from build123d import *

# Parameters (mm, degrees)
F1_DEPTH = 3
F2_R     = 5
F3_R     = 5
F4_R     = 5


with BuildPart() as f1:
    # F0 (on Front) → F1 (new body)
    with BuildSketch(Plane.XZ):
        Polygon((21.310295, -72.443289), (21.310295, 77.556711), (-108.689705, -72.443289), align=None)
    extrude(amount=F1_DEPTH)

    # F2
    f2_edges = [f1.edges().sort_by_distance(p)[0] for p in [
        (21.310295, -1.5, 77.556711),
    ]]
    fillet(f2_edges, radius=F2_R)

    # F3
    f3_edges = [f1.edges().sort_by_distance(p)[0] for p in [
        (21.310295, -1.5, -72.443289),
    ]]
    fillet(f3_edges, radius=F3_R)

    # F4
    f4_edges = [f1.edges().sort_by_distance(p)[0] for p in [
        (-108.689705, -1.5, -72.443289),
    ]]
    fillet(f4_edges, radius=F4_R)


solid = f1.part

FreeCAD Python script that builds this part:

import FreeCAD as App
import Part
import Sketcher

V = App.Vector
Q = App.Units.Quantity


def edges_at(feature, points):
    """Names of the edges that pass closest to the given points."""
    edges = feature.Shape.Edges
    near = lambda p: min(range(len(edges)), key=lambda i: edges[i].distToShape(Part.Vertex(*p))[0])
    return sorted({f"Edge{near(p) + 1}" for p in points})

doc = App.newDocument("Part")
params = doc.addObject("Spreadsheet::Sheet", "Params")
for row, (alias, value) in enumerate([
    ("sketch1_width", "130 mm"),
    ("sketch1_height", "150 mm"),
    ("pad1_length", "3 mm"),
    ("fillet_radius", "5 mm"),
    ("fillet2_radius", "5 mm"),
    ("fillet3_radius", "5 mm"),
], start=1):
    params.set(f"A{row}", alias)
    params.set(f"B{row}", "=" + value)
    params.setAlias(f"B{row}", alias)

body = doc.addObject("PartDesign::Body", "Body")

# Sketch on XZ plane
sketch1 = body.newObject("Sketcher::SketchObject", "Sketch")
sketch1.AttachmentSupport = (doc.getObject("XZ_Plane"), [""])
sketch1.MapMode = "FlatFace"
sketch1.addGeometry([
    Part.LineSegment(V(21.310295, -72.443289, 0), V(21.310295, 77.556711, 0)),
    Part.LineSegment(V(21.310295, 77.556711, 0), V(-108.689705, -72.443289, 0)),
    Part.LineSegment(V(-108.689705, -72.443289, 0), V(21.310295, -72.443289, 0)),
], False)
sketch1.addConstraint([
    Sketcher.Constraint("Coincident", 0, 2, 1, 1),
    Sketcher.Constraint("Coincident", 1, 2, 2, 1),
    Sketcher.Constraint("Coincident", 2, 2, 0, 1),
    Sketcher.Constraint("Vertical", 0),
    Sketcher.Constraint("Horizontal", 2),
    Sketcher.Constraint("DistanceX", 2, 1, 2, 2, Q("130 mm")),
    Sketcher.Constraint("DistanceY", 0, 1, 0, 2, Q("150 mm")),
    Sketcher.Constraint("DistanceY", -1, 1, 0, 2, Q("77.556711 mm")),
    Sketcher.Constraint("DistanceX", -1, 1, 0, 2, Q("21.310295 mm")),
])
sketch1.setExpression("Constraints[5]", "Params.sketch1_width")
sketch1.setExpression("Constraints[6]", "Params.sketch1_height")
pad1 = body.newObject("PartDesign::Pad", "Pad")
pad1.Profile = sketch1
pad1.setExpression("Length", "Params.pad1_length")
doc.recompute()

fillet = body.newObject("PartDesign::Fillet", "Fillet")
fillet.Base = (pad1, edges_at(pad1, [(21.31, -1.5, 77.557)]))
fillet.setExpression("Radius", "Params.fillet_radius")
doc.recompute()

fillet2 = body.newObject("PartDesign::Fillet", "Fillet001")
fillet2.Base = (fillet, edges_at(fillet, [(21.31, -1.5, -72.443)]))
fillet2.setExpression("Radius", "Params.fillet2_radius")
doc.recompute()

fillet3 = body.newObject("PartDesign::Fillet", "Fillet002")
fillet3.Base = (fillet2, edges_at(fillet2, [(-108.69, -1.5, -72.443)]))
fillet3.setExpression("Radius", "Params.fillet3_radius")

doc.recompute()
